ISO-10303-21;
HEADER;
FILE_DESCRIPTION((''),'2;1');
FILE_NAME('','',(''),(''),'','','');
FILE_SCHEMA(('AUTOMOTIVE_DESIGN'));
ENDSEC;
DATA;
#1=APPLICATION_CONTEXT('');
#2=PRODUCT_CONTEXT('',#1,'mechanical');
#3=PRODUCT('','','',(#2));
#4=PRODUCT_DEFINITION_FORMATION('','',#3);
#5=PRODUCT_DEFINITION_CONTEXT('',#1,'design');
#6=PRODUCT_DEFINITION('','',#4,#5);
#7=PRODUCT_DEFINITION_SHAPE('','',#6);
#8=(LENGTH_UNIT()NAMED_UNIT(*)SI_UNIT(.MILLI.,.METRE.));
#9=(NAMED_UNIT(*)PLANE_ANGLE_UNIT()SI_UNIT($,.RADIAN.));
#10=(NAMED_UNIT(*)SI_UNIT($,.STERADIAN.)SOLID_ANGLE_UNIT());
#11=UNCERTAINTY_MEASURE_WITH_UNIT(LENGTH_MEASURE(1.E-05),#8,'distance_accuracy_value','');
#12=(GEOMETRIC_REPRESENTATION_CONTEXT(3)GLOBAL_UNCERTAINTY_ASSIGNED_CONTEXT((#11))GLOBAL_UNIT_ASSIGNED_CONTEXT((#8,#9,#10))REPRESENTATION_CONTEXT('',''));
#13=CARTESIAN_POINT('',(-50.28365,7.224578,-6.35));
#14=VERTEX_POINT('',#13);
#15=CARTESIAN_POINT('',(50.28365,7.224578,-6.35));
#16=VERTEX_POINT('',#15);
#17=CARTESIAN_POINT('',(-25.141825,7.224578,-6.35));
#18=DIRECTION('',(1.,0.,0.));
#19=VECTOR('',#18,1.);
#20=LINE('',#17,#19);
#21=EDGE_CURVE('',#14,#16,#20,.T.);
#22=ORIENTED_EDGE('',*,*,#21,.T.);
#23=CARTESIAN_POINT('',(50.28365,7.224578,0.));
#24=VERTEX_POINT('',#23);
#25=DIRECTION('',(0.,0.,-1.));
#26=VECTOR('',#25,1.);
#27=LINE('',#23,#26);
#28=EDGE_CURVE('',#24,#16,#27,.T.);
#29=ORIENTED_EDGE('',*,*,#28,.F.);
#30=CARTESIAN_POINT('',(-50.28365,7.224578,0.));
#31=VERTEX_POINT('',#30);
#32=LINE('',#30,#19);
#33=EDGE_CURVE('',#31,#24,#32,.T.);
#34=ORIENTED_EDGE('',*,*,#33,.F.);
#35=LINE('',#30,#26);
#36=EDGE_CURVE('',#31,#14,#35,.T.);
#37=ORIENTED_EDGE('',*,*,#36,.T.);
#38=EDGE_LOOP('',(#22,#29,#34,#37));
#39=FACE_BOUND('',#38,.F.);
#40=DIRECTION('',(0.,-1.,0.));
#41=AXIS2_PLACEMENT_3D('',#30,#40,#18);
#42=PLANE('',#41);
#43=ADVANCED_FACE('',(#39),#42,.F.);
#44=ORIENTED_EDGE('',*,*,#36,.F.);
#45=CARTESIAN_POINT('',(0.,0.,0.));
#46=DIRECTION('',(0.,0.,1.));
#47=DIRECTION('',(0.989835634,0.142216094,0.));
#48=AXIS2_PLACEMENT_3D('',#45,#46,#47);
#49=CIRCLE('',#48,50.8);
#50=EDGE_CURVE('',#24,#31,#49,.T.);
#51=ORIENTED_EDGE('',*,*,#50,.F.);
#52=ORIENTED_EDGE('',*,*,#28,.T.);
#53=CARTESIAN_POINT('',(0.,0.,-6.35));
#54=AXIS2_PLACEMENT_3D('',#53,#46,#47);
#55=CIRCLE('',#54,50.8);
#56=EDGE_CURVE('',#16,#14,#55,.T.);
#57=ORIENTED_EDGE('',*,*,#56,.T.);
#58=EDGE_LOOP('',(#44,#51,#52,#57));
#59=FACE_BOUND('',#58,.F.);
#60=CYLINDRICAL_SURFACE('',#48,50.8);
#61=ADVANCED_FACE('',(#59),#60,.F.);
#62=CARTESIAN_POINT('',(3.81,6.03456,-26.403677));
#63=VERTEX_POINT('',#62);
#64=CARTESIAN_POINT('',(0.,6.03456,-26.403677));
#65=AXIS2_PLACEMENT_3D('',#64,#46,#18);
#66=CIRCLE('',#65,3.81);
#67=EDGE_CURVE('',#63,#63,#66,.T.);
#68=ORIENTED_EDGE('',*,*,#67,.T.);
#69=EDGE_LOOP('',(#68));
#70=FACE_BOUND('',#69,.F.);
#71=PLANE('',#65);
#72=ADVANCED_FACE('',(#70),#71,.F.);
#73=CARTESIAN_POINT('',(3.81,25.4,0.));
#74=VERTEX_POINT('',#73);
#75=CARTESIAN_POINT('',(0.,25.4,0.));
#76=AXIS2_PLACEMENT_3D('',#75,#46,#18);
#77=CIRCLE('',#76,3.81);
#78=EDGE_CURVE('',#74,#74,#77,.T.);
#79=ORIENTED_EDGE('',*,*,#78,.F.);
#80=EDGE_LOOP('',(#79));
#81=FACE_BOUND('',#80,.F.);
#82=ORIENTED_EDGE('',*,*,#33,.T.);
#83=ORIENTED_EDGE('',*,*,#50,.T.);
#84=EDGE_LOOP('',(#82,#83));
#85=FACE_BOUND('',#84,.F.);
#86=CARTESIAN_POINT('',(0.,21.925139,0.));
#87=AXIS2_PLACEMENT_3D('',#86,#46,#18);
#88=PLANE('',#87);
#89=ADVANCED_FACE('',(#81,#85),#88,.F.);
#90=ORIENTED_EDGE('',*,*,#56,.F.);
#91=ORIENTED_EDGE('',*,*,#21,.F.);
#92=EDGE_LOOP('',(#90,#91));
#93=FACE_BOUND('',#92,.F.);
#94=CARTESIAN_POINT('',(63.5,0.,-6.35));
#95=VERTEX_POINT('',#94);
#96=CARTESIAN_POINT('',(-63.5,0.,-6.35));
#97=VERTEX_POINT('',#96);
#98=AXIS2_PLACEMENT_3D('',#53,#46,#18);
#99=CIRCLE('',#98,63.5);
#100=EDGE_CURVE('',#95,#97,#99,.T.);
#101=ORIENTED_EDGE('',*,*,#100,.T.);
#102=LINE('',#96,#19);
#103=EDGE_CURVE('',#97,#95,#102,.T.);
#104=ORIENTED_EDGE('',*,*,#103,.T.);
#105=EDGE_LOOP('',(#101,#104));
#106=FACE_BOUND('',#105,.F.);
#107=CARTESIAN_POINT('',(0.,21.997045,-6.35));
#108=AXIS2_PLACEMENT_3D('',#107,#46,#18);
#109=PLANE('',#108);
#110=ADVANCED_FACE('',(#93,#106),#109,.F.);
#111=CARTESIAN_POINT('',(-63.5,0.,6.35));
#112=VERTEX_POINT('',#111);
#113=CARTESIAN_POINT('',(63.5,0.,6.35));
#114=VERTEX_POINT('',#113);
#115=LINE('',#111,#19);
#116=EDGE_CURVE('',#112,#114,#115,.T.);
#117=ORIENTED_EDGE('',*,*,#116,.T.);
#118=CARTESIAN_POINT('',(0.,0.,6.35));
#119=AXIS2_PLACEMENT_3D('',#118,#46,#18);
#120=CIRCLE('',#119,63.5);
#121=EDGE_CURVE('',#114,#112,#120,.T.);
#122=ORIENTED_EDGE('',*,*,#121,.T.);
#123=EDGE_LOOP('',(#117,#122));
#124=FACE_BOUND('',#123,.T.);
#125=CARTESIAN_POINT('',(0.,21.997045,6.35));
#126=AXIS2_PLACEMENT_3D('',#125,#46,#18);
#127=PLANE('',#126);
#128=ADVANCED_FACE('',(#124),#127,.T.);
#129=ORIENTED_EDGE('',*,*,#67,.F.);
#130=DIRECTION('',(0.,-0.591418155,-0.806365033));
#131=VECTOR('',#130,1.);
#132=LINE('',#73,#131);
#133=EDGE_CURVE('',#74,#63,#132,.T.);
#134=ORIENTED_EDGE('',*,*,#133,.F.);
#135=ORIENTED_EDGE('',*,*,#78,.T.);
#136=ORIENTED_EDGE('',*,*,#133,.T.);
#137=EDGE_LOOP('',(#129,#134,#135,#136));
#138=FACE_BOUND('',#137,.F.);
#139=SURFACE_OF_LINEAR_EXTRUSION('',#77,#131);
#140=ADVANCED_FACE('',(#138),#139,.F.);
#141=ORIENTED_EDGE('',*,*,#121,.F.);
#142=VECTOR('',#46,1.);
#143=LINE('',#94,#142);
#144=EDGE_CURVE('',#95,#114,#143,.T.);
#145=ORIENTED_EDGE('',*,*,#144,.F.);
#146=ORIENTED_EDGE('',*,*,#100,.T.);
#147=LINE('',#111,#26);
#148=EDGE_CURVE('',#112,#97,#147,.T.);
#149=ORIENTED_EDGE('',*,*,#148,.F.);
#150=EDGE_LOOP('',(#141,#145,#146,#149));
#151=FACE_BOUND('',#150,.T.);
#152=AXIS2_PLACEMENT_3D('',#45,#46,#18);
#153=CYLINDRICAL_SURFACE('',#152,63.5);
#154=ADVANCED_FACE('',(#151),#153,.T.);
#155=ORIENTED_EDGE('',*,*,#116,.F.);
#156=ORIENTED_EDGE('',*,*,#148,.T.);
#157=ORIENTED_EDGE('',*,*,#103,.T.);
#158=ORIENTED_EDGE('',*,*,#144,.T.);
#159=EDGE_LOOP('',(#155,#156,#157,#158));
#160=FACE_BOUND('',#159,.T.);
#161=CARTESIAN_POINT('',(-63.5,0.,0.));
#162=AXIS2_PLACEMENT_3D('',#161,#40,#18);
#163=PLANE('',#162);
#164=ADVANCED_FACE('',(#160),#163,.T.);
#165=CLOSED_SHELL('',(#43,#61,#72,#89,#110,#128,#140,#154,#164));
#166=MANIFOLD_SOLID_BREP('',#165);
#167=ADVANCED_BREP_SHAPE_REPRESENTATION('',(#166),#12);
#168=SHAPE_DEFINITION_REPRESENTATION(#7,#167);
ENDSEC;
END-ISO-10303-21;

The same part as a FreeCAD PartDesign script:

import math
import FreeCAD as App
import Part
import Sketcher

V = App.Vector
Q = App.Units.Quantity

doc = App.newDocument("Part")
body = doc.addObject("PartDesign::Body", "Body")

sketch1 = body.newObject("Sketcher::SketchObject", "Sketch")
sketch1.AttachmentSupport = (doc.getObject("XY_Plane"), [""])
sketch1.MapMode = "FlatFace"
sketch1.addGeometry(Part.LineSegment(V(-64, 0, 0), V(64, 0, 0)), False)
sketch1.addGeometry(Part.ArcOfCircle(Part.Circle(V(0, 0, 0), V(0, 0, 1), 64), math.radians(0), math.radians(180)), False)
sketch1.addConstraint(Sketcher.Constraint("Coincident", 0, 1, 1, 2))
sketch1.addConstraint(Sketcher.Constraint("Coincident", 1, 1, 0, 2))
sketch1.addConstraint(Sketcher.Constraint("Horizontal", 0))
sketch1.addConstraint(Sketcher.Constraint("Coincident", 1, 3, -1, 1))
sketch1.addConstraint(Sketcher.Constraint("PointOnObject", 0, 1, -1))
sketch1.addConstraint(Sketcher.Constraint("Radius", 1, Q("2.5 in")))
pad1 = body.newObject("PartDesign::Pad", "Pad")
pad1.Profile = sketch1
pad1.Length = Q("0.5 in")
pad1.Midplane = True

sketch2 = body.newObject("Sketcher::SketchObject", "Sketch001")
sketch2.AttachmentSupport = (doc.getObject("XY_Plane"), [""])
sketch2.MapMode = "FlatFace"
sketch2.addGeometry(Part.LineSegment(V(-50, 7, 0), V(50, 7, 0)), False)
sketch2.addGeometry(Part.ArcOfCircle(Part.Circle(V(0, 0, 0), V(0, 0, 1), 51), math.radians(8), math.radians(172)), False)
sketch2.addConstraint(Sketcher.Constraint("Coincident", 0, 1, 1, 2))
sketch2.addConstraint(Sketcher.Constraint("Coincident", 1, 1, 0, 2))
sketch2.addConstraint(Sketcher.Constraint("Horizontal", 0))
sketch2.addConstraint(Sketcher.Constraint("Coincident", 1, 3, -1, 1))
sketch2.addConstraint(Sketcher.Constraint("Radius", 1, Q("2 in")))
sketch2.addConstraint(Sketcher.Constraint("DistanceX", 0, 1, 0, 2, 100.5673))
pocket1 = body.newObject("PartDesign::Pocket", "Pocket")
pocket1.Profile = sketch2
pocket1.Length = Q("1 in")

sketch3 = body.newObject("Sketcher::SketchObject", "Sketch002")
sketch3.AttachmentSupport = (doc.getObject("XY_Plane"), [""])
sketch3.MapMode = "FlatFace"
sketch3.addGeometry(Part.Circle(V(0, 25.4, 0), V(0, 0, 1), 3.8), False)
sketch3.addConstraint(Sketcher.Constraint("PointOnObject", 0, 3, -2))
sketch3.addConstraint(Sketcher.Constraint("Diameter", 0, Q("0.3 in")))
sketch3.addConstraint(Sketcher.Constraint("DistanceY", -1, 1, 0, 3, Q("1 in")))

sketch4 = body.newObject("Sketcher::SketchObject", "Sketch003")
sketch4.Placement = App.Placement(V(0, 16.604825, -12.178597), App.Rotation(V(0, -0.591418155, -0.806365033), V(1.000000001, 0, 0), V(0, -0.806365033, 0.591418155), "ZXY"))
sketch4.addGeometry(Part.LineSegment(V(-15, 0, 0), V(18, 0, 0)), False)
sketch4.addConstraint(Sketcher.Constraint("Horizontal", 0))
sketch4.addConstraint(Sketcher.Constraint("PointOnObject", 0, 1, -1))
sketch4.addConstraint(Sketcher.Constraint("DistanceX", 0, 1, 0, 2, 32.744075))
sketch4.addConstraint(Sketcher.Constraint("DistanceX", 0, 1, -1, 1, 15.103082))
doc.recompute()

additivepipe = body.newObject("PartDesign::AdditivePipe", "AdditivePipe")
additivepipe.Profile = sketch3
additivepipe.Spine = (sketch4, ["Edge1"])

doc.recompute()
